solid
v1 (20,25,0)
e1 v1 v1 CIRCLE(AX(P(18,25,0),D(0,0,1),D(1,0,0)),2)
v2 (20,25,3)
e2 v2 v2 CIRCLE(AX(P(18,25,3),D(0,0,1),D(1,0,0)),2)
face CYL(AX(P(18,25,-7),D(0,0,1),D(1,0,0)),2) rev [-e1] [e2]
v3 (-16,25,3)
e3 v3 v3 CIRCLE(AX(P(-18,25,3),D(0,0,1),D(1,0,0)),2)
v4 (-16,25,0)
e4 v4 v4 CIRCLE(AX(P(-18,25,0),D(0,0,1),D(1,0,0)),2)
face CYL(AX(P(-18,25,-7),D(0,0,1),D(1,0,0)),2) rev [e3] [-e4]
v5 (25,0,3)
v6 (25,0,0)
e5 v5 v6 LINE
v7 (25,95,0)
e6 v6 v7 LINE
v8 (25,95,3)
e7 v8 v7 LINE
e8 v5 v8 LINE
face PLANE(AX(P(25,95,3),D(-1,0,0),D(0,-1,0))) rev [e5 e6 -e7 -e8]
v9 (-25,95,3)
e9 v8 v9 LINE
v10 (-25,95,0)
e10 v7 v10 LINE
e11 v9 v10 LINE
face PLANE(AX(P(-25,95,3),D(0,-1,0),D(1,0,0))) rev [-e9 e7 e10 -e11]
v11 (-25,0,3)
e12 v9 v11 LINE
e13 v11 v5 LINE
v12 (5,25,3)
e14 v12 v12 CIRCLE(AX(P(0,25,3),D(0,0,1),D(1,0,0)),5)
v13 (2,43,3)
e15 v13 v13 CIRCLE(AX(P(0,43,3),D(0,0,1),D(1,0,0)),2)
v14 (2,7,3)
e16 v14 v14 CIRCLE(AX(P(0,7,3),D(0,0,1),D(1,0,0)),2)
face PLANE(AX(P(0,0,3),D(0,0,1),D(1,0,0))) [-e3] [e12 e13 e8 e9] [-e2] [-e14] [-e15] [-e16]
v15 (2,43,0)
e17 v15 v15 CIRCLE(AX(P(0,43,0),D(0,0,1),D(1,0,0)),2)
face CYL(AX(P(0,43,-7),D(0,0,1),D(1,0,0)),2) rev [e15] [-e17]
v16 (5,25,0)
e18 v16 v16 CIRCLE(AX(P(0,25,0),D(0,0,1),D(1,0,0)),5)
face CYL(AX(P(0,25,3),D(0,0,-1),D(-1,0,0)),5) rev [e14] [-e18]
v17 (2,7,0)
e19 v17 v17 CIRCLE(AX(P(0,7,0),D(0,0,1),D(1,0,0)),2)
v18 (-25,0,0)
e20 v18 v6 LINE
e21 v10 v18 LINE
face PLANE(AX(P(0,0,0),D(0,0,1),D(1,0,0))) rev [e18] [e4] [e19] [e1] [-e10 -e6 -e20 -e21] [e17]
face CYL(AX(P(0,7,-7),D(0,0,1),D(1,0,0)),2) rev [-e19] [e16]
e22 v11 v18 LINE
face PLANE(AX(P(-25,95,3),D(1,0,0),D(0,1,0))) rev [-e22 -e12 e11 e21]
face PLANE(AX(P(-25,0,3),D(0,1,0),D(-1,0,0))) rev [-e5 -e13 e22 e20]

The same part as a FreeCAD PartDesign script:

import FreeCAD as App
import Part
import Sketcher
Q = App.Units.Quantity


def add_polygon(sketch, points):
    """Adds a closed chain of lines whose ends are joined by coincident constraints."""
    first, n = sketch.GeometryCount, len(points)
    for a, b in zip(points, points[1:] + points[:1]):
        sketch.addGeometry(Part.LineSegment(App.Vector(*a, 0), App.Vector(*b, 0)), False)
    for i in range(n):
        sketch.addConstraint(Sketcher.Constraint("Coincident", first + i, 2, first + (i + 1) % n, 1))

doc = App.newDocument("Part")
body = doc.addObject("PartDesign::Body", "Body")

# Sketch on XY plane
sketch1 = body.newObject("Sketcher::SketchObject", "Sketch")
sketch1.AttachmentSupport = (doc.getObject("XY_Plane"), [""])
sketch1.MapMode = "FlatFace"
add_polygon(sketch1, [(-25, 95), (-25, 0), (25, 0), (25, 95)])  # lines 0-3
sketch1.addGeometry(Part.Circle(App.Vector(0, 25, 0), App.Vector(0, 0, 1), 5), False)  # 4
sketch1.addConstraint([
    Sketcher.Constraint("Vertical", 0),
    Sketcher.Constraint("Horizontal", 1),
    Sketcher.Constraint("Vertical", 2),
    Sketcher.Constraint("Horizontal", 3),
    Sketcher.Constraint("Symmetric", 0, 2, 1, 2, -1, 1),
    Sketcher.Constraint("PointOnObject", 4, 3, -2),
    Sketcher.Constraint("Diameter", 4, Q("10 mm")),
    Sketcher.Constraint("DistanceX", 1, 1, 1, 2, Q("50 mm")),
    Sketcher.Constraint("DistanceY", 0, 2, 0, 1, Q("95 mm")),
    Sketcher.Constraint("DistanceY", -1, 1, 4, 3, Q("25 mm")),
])
pad1 = body.newObject("PartDesign::Pad", "Pad")
pad1.Profile = sketch1
pad1.Length = 3

# Sketch on XY plane
sketch2 = body.newObject("Sketcher::SketchObject", "Sketch001")
sketch2.AttachmentSupport = (doc.getObject("XY_Plane"), [""])
sketch2.MapMode = "FlatFace"
sketch2.AttachmentOffset = App.Placement(App.Vector(0, 0, 3), App.Rotation())
sketch2.addGeometry([
    Part.Circle(App.Vector(0, 43, 0), App.Vector(0, 0, 1), 2),
    Part.Circle(App.Vector(18, 25, 0), App.Vector(0, 0, 1), 2),
    Part.Circle(App.Vector(0, 7, 0), App.Vector(0, 0, 1), 2),
    Part.Circle(App.Vector(-18, 25, 0), App.Vector(0, 0, 1), 2),
], False)
sketch2.addConstraint([
    Sketcher.Constraint("Equal", 0, 1),
    Sketcher.Constraint("Equal", 1, 2),
    Sketcher.Constraint("Equal", 2, 3),
    Sketcher.Constraint("Symmetric", 1, 3, 3, 3, -2),
    Sketcher.Constraint("PointOnObject", 0, 3, -2),
    Sketcher.Constraint("PointOnObject", 2, 3, -2),
    Sketcher.Constraint("Diameter", 0, Q("4 mm")),
    Sketcher.Constraint("DistanceY", -1, 1, 0, 3, Q("43 mm")),
    Sketcher.Constraint("DistanceX", -1, 1, 1, 3, Q("18 mm")),
    Sketcher.Constraint("DistanceY", -1, 1, 1, 3, Q("25 mm")),
    Sketcher.Constraint("DistanceY", -1, 1, 2, 3, Q("7 mm")),
])
pocket1 = body.newObject("PartDesign::Pocket", "Pocket")
pocket1.Profile = sketch2
pocket1.Length = 10

doc.recompute()
